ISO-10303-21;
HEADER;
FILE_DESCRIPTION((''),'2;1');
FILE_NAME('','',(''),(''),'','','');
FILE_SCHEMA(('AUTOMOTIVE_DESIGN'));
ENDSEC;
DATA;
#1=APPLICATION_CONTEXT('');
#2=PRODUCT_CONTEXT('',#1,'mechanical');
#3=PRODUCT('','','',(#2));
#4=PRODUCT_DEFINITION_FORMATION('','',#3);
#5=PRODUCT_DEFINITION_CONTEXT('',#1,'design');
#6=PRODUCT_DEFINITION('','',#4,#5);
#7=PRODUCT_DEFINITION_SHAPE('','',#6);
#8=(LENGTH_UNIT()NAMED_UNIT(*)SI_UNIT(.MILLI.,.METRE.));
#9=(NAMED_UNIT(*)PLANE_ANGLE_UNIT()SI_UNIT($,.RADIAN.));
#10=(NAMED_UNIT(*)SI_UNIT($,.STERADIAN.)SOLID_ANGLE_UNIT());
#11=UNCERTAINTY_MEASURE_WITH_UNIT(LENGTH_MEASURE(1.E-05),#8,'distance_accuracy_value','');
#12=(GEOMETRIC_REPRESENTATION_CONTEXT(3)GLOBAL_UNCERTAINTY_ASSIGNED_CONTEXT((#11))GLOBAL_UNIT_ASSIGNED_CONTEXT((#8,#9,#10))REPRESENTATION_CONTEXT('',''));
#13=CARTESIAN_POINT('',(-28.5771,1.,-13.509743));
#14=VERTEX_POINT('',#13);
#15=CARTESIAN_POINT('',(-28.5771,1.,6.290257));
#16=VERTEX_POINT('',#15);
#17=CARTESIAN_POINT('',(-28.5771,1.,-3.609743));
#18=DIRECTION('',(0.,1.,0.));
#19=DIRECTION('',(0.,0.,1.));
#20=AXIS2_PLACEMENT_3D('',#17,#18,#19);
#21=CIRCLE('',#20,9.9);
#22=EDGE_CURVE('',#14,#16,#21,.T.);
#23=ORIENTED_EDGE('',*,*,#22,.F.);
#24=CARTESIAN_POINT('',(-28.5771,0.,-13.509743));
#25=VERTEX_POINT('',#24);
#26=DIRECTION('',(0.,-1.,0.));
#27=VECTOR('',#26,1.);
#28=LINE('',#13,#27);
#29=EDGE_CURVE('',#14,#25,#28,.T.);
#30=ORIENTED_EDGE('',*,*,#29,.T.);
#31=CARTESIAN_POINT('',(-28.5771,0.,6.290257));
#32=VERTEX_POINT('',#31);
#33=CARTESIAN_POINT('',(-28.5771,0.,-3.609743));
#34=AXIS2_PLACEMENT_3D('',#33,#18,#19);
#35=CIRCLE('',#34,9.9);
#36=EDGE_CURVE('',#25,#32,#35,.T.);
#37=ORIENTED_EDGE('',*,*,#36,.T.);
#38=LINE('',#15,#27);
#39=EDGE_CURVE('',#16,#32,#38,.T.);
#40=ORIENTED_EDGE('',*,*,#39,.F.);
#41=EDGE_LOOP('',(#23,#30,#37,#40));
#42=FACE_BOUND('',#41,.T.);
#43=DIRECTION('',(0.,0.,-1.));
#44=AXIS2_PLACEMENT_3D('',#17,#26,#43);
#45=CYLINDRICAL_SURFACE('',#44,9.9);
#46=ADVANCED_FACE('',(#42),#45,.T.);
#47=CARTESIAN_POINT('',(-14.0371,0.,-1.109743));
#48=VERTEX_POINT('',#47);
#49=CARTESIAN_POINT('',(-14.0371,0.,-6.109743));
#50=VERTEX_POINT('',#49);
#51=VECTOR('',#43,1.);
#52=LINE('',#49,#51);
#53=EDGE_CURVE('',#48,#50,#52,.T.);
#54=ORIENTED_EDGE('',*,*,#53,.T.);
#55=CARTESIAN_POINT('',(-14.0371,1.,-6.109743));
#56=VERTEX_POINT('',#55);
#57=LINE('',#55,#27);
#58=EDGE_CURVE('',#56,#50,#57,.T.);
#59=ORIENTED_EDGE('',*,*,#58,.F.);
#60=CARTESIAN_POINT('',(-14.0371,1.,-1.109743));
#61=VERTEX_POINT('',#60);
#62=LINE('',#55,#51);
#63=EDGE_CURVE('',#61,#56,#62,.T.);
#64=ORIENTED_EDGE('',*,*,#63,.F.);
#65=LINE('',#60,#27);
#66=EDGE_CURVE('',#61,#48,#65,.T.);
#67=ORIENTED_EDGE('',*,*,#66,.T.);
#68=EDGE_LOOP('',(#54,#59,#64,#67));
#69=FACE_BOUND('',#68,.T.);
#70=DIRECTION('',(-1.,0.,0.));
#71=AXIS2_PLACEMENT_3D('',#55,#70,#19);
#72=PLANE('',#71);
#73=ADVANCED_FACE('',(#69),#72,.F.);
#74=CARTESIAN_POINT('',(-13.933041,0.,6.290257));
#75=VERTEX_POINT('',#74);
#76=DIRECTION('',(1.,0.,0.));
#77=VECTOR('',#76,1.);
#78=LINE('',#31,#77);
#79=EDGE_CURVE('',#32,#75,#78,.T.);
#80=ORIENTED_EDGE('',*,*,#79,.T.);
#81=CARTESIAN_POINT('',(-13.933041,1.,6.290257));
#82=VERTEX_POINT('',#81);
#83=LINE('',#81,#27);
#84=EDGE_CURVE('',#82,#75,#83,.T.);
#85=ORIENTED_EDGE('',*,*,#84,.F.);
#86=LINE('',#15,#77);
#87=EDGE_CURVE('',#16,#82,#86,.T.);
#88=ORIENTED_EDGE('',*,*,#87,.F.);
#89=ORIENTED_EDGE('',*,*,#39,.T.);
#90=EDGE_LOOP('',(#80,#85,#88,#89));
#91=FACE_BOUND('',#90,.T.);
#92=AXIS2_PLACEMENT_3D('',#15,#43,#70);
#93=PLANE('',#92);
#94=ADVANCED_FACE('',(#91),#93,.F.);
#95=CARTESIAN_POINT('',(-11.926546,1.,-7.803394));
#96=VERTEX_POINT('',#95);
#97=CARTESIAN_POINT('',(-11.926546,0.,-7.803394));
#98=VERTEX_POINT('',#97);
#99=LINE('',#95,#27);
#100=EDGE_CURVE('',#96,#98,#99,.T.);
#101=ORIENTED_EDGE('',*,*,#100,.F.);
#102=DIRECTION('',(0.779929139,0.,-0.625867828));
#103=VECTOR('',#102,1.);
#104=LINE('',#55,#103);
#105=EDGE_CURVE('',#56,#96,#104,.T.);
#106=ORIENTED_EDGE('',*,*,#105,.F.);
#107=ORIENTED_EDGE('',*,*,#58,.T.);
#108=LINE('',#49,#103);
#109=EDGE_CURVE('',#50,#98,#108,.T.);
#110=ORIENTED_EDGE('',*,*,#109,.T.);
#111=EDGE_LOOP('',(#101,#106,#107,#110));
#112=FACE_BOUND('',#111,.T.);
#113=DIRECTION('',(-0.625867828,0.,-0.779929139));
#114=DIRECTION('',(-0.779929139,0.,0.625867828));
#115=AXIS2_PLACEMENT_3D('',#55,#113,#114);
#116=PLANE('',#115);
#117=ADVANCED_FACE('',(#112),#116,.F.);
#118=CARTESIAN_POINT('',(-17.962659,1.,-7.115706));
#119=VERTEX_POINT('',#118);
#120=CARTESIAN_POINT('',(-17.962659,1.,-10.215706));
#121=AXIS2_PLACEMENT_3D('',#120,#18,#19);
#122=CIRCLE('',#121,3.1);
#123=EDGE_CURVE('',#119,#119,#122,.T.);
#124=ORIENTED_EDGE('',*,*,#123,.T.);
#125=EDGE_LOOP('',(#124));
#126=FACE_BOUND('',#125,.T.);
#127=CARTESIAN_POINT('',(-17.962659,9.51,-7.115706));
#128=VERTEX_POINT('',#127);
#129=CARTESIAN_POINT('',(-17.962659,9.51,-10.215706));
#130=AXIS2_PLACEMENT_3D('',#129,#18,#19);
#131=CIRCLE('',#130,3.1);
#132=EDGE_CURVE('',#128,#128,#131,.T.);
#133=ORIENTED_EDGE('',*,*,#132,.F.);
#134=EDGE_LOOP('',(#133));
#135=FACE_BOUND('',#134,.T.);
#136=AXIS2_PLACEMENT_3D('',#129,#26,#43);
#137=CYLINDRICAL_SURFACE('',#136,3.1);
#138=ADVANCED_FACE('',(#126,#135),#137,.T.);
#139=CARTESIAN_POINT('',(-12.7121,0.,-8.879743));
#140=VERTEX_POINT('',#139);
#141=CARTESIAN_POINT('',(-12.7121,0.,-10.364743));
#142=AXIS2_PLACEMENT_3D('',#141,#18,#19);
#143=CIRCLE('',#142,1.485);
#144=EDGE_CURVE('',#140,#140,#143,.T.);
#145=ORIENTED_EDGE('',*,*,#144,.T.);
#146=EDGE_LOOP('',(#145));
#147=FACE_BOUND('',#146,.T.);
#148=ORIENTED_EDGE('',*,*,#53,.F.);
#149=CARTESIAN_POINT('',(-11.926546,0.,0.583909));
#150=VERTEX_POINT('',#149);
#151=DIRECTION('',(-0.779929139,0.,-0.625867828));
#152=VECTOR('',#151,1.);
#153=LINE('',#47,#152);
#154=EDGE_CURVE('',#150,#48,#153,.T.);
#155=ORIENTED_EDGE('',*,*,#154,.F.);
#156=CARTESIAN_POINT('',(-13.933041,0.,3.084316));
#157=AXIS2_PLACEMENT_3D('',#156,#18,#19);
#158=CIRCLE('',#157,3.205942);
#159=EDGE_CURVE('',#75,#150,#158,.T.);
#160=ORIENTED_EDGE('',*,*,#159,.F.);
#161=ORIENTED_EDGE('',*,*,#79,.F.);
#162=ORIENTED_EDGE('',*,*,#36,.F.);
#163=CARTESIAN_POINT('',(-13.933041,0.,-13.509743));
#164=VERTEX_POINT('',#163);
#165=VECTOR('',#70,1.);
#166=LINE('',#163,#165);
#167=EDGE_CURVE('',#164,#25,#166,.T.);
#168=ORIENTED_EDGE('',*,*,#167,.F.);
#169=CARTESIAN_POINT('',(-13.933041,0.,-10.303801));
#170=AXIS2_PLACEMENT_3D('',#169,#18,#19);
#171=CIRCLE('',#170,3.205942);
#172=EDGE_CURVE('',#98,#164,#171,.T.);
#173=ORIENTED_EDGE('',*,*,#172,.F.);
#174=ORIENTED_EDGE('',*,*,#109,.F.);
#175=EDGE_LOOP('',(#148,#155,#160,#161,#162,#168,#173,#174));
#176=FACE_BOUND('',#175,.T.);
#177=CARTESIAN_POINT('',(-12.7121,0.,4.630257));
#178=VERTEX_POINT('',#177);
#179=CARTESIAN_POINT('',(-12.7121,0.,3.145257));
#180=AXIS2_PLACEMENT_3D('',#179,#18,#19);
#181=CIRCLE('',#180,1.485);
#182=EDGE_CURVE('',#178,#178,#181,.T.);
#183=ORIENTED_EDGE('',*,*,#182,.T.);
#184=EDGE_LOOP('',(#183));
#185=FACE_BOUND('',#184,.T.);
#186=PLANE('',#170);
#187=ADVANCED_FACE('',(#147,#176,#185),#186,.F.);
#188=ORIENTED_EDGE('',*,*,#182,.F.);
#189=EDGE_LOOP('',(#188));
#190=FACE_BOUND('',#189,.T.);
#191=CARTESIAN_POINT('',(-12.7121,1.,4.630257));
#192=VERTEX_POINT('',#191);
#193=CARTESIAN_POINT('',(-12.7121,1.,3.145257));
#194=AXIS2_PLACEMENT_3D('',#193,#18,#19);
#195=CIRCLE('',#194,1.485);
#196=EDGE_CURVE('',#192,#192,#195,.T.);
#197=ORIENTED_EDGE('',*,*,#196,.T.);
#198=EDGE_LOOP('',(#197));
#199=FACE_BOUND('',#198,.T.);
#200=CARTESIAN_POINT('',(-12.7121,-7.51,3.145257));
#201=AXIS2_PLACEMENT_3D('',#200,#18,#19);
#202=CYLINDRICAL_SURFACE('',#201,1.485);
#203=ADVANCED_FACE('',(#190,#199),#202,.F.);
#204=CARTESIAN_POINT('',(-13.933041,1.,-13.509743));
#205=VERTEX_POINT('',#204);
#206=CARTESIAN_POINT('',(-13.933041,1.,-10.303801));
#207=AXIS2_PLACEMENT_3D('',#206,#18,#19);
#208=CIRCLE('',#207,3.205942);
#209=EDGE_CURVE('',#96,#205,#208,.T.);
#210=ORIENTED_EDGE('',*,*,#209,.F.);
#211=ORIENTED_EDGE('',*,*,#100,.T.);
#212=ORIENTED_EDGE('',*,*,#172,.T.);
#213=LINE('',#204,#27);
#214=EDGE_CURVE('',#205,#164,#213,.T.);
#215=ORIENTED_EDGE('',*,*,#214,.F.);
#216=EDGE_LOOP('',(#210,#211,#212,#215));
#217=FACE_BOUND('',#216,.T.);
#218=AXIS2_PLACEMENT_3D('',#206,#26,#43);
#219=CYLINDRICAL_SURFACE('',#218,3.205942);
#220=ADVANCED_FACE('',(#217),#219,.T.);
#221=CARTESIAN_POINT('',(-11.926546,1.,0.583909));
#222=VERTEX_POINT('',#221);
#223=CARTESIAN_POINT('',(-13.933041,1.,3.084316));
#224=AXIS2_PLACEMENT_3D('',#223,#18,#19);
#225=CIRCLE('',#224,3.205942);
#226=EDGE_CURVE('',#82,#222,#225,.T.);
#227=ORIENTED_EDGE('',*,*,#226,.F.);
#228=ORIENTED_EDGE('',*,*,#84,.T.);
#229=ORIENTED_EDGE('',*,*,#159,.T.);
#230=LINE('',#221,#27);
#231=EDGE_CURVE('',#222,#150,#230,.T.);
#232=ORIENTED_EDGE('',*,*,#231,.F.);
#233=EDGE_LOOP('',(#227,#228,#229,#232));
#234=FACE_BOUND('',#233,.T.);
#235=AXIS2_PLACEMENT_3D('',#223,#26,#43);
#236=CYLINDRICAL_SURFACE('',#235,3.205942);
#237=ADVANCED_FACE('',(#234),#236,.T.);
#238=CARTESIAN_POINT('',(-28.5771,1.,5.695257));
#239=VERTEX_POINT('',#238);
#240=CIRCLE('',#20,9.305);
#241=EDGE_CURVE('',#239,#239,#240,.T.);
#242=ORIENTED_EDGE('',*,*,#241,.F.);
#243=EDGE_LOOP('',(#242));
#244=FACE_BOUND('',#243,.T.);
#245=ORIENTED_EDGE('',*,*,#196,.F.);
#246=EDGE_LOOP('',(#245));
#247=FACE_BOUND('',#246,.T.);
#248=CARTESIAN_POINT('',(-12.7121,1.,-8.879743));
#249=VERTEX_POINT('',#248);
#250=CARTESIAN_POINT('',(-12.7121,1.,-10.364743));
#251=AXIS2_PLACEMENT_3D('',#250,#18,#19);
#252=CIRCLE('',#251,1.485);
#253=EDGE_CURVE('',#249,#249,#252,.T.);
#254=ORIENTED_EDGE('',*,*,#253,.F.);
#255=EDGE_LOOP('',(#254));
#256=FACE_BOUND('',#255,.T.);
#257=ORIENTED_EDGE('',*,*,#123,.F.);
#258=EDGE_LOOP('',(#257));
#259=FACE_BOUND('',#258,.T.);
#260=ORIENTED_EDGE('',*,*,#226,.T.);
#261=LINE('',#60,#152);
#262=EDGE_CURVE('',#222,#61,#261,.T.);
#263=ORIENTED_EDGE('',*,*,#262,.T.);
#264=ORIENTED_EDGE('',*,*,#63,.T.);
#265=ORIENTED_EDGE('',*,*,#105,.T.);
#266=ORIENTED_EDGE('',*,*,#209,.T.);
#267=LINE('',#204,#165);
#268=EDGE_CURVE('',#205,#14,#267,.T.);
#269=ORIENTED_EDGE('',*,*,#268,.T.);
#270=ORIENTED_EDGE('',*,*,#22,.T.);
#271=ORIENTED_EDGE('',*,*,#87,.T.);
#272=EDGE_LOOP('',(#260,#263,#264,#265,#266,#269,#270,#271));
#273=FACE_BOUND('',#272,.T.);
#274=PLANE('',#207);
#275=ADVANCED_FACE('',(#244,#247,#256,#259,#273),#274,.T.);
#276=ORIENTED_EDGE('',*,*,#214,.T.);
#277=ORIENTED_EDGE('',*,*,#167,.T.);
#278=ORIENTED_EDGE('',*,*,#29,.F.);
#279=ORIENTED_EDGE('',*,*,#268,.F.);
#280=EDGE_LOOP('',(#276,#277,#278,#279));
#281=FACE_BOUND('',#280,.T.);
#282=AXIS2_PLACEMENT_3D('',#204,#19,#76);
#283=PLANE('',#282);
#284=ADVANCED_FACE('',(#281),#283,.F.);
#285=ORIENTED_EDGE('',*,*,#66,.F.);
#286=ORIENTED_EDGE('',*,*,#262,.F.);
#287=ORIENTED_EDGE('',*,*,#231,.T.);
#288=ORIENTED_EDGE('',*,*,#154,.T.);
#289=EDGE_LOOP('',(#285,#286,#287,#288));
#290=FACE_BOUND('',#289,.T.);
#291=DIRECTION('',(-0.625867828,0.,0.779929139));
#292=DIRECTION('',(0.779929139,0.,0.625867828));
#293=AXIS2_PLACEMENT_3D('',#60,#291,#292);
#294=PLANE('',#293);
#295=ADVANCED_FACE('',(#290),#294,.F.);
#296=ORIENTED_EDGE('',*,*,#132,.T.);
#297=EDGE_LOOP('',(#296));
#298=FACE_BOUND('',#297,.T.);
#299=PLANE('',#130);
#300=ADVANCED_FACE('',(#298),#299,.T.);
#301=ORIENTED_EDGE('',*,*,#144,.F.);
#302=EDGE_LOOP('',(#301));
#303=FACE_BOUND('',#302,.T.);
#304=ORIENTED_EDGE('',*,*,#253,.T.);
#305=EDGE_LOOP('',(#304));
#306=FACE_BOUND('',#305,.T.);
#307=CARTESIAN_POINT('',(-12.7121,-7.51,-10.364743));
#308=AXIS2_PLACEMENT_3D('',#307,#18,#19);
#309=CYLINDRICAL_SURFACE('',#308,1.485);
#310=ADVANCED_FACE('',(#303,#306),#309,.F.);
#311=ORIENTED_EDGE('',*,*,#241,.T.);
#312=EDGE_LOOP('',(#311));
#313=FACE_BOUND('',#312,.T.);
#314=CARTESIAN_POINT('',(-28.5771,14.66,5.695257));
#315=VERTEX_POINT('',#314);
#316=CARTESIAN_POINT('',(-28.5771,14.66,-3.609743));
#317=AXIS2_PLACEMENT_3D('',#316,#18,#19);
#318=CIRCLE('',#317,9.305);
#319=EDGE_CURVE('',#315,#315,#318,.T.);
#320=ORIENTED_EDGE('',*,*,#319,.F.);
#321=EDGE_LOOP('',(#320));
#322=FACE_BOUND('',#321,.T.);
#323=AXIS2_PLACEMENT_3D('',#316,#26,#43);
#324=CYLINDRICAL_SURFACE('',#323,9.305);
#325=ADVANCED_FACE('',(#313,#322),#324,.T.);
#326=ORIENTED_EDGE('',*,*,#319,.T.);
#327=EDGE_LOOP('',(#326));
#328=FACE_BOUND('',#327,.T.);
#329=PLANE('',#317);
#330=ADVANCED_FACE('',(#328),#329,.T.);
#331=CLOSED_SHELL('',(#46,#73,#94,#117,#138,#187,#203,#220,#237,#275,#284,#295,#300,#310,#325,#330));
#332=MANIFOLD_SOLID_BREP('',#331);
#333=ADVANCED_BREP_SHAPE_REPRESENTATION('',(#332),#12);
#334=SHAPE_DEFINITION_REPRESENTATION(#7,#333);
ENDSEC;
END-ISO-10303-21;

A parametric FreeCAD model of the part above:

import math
import FreeCAD as App
import Part
import Sketcher
Q = App.Units.Quantity

doc = App.newDocument("Part")
body = doc.addObject("PartDesign::Body", "Body")

# Sketch on XZ plane
sketch1 = body.newObject("Sketcher::SketchObject", "Sketch")
sketch1.AttachmentSupport = (doc.getObject("XZ_Plane"), [""])
sketch1.MapMode = "FlatFace"
sketch1.addGeometry(Part.LineSegment(App.Vector(-13.933041, -13.509743, 0), App.Vector(-28.5771, -13.509743, 0)), False)
sketch1.addGeometry(Part.ArcOfCircle(Part.Circle(App.Vector(-28.5771, -3.609743, 0), App.Vector(0, 0, 1), 9.9), math.radians(90), math.radians(270)), False)
sketch1.addGeometry(Part.LineSegment(App.Vector(-28.5771, 6.290257, 0), App.Vector(-13.933041, 6.290257, 0)), False)
sketch1.addGeometry(Part.ArcOfCircle(Part.Circle(App.Vector(-13.933041, 3.084316, 0), App.Vector(0, 0, 1), 3.205942), math.radians(-51.254088), math.radians(90)), False)
sketch1.addGeometry(Part.LineSegment(App.Vector(-11.926546, 0.583909, 0), App.Vector(-14.0371, -1.109743, 0)), False)
sketch1.addGeometry(Part.LineSegment(App.Vector(-14.0371, -1.109743, 0), App.Vector(-14.0371, -6.109743, 0)), False)
sketch1.addGeometry(Part.LineSegment(App.Vector(-14.0371, -6.109743, 0), App.Vector(-11.926546, -7.803394, 0)), False)
sketch1.addGeometry(Part.ArcOfCircle(Part.Circle(App.Vector(-13.933041, -10.303801, 0), App.Vector(0, 0, 1), 3.205942), math.radians(-90), math.radians(51.254088)), False)
sketch1.addConstraint(Sketcher.Constraint("Tangent", 0, 2, 1, 2))
sketch1.addConstraint(Sketcher.Constraint("Tangent", 1, 1, 2, 1))
sketch1.addConstraint(Sketcher.Constraint("Tangent", 2, 2, 3, 2))
sketch1.addConstraint(Sketcher.Constraint("Tangent", 3, 1, 4, 1))
sketch1.addConstraint(Sketcher.Constraint("Coincident", 4, 2, 5, 1))
sketch1.addConstraint(Sketcher.Constraint("Coincident", 5, 2, 6, 1))
sketch1.addConstraint(Sketcher.Constraint("Tangent", 6, 2, 7, 2))
sketch1.addConstraint(Sketcher.Constraint("Tangent", 7, 1, 0, 1))
sketch1.addConstraint(Sketcher.Constraint("Horizontal", 0))
sketch1.addConstraint(Sketcher.Constraint("Horizontal", 2))
sketch1.addConstraint(Sketcher.Constraint("Vertical", 5))
sketch1.addConstraint(Sketcher.Constraint("Equal", 3, 7))
sketch1.addConstraint(Sketcher.Constraint("Vertical", 3, 3, 7, 3))
sketch1.addConstraint(Sketcher.Constraint("Vertical", 3, 1, 6, 2))
sketch1.addConstraint(Sketcher.Constraint("Radius", 1, Q("9.9 mm")))
sketch1.addConstraint(Sketcher.Constraint("DistanceY", 5, 2, 5, 1, Q("5 mm")))
sketch1.addConstraint(Sketcher.Constraint("Radius", 3, Q("3.205942 mm")))
sketch1.addConstraint(Sketcher.Constraint("DistanceX", 1, 3, 4, 2, Q("14.54 mm")))
sketch1.addConstraint(Sketcher.Constraint("DistanceX", 0, 2, 0, 1, Q("14.644058 mm")))
sketch1.addConstraint(Sketcher.Constraint("DistanceX", 1, 3, -1, 1, Q("28.5771 mm")))
sketch1.addConstraint(Sketcher.Constraint("DistanceY", 7, 3, -1, 1, Q("10.303801 mm")))
pad1 = body.newObject("PartDesign::Pad", "Pad")
pad1.Profile = sketch1
pad1.Length = 1
pad1.Reversed = True

# Sketch on XZ plane
sketch2 = body.newObject("Sketcher::SketchObject", "Sketch001")
sketch2.AttachmentSupport = (doc.getObject("XZ_Plane"), [""])
sketch2.MapMode = "FlatFace"
sketch2.AttachmentOffset = App.Placement(App.Vector(0, 0, -1), App.Rotation())
sketch2.addGeometry(Part.Circle(App.Vector(-28.5771, -3.609743, 0), App.Vector(0, 0, 1), 9.305), False)
sketch2.addConstraint(Sketcher.Constraint("Diameter", 0, Q("18.61 mm")))
sketch2.addConstraint(Sketcher.Constraint("DistanceX", 0, 3, -1, 1, Q("28.5771 mm")))
sketch2.addConstraint(Sketcher.Constraint("DistanceY", 0, 3, -1, 1, Q("3.609743 mm")))
pad2 = body.newObject("PartDesign::Pad", "Pad001")
pad2.Profile = sketch2
pad2.Length = 13.66
pad2.Reversed = True

# Sketch on XZ plane
sketch3 = body.newObject("Sketcher::SketchObject", "Sketch002")
sketch3.AttachmentSupport = (doc.getObject("XZ_Plane"), [""])
sketch3.MapMode = "FlatFace"
sketch3.AttachmentOffset = App.Placement(App.Vector(0, 0, -1), App.Rotation())
sketch3.addGeometry(Part.Circle(App.Vector(-17.962659, -10.215706, 0), App.Vector(0, 0, 1), 3.1), False)
sketch3.addConstraint(Sketcher.Constraint("Diameter", 0, Q("6.2 mm")))
sketch3.addConstraint(Sketcher.Constraint("DistanceX", 0, 3, -1, 1, Q("17.962659 mm")))
sketch3.addConstraint(Sketcher.Constraint("DistanceY", 0, 3, -1, 1, Q("10.215706 mm")))
pad3 = body.newObject("PartDesign::Pad", "Pad002")
pad3.Profile = sketch3
pad3.Length = 8.51
pad3.Reversed = True

# Sketch on XZ plane
sketch4 = body.newObject("Sketcher::SketchObject", "Sketch003")
sketch4.AttachmentSupport = (doc.getObject("XZ_Plane"), [""])
sketch4.MapMode = "FlatFace"
sketch4.AttachmentOffset = App.Placement(App.Vector(0, 0, -1), App.Rotation())
sketch4.addGeometry(Part.Circle(App.Vector(-12.7121, -10.364743, 0), App.Vector(0, 0, 1), 1.485), False)
sketch4.addGeometry(Part.Circle(App.Vector(-12.7121, 3.145257, 0), App.Vector(0, 0, 1), 1.485), False)
sketch4.addConstraint(Sketcher.Constraint("Equal", 0, 1))
sketch4.addConstraint(Sketcher.Constraint("Vertical", 0, 3, 1, 3))
sketch4.addConstraint(Sketcher.Constraint("Diameter", 0, Q("2.97 mm")))
sketch4.addConstraint(Sketcher.Constraint("DistanceY", 0, 3, 1, 3, Q("13.51 mm")))
sketch4.addConstraint(Sketcher.Constraint("DistanceX", 0, 3, -1, 1, Q("12.7121 mm")))
sketch4.addConstraint(Sketcher.Constraint("DistanceY", 0, 3, -1, 1, Q("10.364743 mm")))
pocket1 = body.newObject("PartDesign::Pocket", "Pocket")
pocket1.Profile = sketch4
pocket1.Length = 8.51
pocket1.Reversed = True

doc.recompute()
